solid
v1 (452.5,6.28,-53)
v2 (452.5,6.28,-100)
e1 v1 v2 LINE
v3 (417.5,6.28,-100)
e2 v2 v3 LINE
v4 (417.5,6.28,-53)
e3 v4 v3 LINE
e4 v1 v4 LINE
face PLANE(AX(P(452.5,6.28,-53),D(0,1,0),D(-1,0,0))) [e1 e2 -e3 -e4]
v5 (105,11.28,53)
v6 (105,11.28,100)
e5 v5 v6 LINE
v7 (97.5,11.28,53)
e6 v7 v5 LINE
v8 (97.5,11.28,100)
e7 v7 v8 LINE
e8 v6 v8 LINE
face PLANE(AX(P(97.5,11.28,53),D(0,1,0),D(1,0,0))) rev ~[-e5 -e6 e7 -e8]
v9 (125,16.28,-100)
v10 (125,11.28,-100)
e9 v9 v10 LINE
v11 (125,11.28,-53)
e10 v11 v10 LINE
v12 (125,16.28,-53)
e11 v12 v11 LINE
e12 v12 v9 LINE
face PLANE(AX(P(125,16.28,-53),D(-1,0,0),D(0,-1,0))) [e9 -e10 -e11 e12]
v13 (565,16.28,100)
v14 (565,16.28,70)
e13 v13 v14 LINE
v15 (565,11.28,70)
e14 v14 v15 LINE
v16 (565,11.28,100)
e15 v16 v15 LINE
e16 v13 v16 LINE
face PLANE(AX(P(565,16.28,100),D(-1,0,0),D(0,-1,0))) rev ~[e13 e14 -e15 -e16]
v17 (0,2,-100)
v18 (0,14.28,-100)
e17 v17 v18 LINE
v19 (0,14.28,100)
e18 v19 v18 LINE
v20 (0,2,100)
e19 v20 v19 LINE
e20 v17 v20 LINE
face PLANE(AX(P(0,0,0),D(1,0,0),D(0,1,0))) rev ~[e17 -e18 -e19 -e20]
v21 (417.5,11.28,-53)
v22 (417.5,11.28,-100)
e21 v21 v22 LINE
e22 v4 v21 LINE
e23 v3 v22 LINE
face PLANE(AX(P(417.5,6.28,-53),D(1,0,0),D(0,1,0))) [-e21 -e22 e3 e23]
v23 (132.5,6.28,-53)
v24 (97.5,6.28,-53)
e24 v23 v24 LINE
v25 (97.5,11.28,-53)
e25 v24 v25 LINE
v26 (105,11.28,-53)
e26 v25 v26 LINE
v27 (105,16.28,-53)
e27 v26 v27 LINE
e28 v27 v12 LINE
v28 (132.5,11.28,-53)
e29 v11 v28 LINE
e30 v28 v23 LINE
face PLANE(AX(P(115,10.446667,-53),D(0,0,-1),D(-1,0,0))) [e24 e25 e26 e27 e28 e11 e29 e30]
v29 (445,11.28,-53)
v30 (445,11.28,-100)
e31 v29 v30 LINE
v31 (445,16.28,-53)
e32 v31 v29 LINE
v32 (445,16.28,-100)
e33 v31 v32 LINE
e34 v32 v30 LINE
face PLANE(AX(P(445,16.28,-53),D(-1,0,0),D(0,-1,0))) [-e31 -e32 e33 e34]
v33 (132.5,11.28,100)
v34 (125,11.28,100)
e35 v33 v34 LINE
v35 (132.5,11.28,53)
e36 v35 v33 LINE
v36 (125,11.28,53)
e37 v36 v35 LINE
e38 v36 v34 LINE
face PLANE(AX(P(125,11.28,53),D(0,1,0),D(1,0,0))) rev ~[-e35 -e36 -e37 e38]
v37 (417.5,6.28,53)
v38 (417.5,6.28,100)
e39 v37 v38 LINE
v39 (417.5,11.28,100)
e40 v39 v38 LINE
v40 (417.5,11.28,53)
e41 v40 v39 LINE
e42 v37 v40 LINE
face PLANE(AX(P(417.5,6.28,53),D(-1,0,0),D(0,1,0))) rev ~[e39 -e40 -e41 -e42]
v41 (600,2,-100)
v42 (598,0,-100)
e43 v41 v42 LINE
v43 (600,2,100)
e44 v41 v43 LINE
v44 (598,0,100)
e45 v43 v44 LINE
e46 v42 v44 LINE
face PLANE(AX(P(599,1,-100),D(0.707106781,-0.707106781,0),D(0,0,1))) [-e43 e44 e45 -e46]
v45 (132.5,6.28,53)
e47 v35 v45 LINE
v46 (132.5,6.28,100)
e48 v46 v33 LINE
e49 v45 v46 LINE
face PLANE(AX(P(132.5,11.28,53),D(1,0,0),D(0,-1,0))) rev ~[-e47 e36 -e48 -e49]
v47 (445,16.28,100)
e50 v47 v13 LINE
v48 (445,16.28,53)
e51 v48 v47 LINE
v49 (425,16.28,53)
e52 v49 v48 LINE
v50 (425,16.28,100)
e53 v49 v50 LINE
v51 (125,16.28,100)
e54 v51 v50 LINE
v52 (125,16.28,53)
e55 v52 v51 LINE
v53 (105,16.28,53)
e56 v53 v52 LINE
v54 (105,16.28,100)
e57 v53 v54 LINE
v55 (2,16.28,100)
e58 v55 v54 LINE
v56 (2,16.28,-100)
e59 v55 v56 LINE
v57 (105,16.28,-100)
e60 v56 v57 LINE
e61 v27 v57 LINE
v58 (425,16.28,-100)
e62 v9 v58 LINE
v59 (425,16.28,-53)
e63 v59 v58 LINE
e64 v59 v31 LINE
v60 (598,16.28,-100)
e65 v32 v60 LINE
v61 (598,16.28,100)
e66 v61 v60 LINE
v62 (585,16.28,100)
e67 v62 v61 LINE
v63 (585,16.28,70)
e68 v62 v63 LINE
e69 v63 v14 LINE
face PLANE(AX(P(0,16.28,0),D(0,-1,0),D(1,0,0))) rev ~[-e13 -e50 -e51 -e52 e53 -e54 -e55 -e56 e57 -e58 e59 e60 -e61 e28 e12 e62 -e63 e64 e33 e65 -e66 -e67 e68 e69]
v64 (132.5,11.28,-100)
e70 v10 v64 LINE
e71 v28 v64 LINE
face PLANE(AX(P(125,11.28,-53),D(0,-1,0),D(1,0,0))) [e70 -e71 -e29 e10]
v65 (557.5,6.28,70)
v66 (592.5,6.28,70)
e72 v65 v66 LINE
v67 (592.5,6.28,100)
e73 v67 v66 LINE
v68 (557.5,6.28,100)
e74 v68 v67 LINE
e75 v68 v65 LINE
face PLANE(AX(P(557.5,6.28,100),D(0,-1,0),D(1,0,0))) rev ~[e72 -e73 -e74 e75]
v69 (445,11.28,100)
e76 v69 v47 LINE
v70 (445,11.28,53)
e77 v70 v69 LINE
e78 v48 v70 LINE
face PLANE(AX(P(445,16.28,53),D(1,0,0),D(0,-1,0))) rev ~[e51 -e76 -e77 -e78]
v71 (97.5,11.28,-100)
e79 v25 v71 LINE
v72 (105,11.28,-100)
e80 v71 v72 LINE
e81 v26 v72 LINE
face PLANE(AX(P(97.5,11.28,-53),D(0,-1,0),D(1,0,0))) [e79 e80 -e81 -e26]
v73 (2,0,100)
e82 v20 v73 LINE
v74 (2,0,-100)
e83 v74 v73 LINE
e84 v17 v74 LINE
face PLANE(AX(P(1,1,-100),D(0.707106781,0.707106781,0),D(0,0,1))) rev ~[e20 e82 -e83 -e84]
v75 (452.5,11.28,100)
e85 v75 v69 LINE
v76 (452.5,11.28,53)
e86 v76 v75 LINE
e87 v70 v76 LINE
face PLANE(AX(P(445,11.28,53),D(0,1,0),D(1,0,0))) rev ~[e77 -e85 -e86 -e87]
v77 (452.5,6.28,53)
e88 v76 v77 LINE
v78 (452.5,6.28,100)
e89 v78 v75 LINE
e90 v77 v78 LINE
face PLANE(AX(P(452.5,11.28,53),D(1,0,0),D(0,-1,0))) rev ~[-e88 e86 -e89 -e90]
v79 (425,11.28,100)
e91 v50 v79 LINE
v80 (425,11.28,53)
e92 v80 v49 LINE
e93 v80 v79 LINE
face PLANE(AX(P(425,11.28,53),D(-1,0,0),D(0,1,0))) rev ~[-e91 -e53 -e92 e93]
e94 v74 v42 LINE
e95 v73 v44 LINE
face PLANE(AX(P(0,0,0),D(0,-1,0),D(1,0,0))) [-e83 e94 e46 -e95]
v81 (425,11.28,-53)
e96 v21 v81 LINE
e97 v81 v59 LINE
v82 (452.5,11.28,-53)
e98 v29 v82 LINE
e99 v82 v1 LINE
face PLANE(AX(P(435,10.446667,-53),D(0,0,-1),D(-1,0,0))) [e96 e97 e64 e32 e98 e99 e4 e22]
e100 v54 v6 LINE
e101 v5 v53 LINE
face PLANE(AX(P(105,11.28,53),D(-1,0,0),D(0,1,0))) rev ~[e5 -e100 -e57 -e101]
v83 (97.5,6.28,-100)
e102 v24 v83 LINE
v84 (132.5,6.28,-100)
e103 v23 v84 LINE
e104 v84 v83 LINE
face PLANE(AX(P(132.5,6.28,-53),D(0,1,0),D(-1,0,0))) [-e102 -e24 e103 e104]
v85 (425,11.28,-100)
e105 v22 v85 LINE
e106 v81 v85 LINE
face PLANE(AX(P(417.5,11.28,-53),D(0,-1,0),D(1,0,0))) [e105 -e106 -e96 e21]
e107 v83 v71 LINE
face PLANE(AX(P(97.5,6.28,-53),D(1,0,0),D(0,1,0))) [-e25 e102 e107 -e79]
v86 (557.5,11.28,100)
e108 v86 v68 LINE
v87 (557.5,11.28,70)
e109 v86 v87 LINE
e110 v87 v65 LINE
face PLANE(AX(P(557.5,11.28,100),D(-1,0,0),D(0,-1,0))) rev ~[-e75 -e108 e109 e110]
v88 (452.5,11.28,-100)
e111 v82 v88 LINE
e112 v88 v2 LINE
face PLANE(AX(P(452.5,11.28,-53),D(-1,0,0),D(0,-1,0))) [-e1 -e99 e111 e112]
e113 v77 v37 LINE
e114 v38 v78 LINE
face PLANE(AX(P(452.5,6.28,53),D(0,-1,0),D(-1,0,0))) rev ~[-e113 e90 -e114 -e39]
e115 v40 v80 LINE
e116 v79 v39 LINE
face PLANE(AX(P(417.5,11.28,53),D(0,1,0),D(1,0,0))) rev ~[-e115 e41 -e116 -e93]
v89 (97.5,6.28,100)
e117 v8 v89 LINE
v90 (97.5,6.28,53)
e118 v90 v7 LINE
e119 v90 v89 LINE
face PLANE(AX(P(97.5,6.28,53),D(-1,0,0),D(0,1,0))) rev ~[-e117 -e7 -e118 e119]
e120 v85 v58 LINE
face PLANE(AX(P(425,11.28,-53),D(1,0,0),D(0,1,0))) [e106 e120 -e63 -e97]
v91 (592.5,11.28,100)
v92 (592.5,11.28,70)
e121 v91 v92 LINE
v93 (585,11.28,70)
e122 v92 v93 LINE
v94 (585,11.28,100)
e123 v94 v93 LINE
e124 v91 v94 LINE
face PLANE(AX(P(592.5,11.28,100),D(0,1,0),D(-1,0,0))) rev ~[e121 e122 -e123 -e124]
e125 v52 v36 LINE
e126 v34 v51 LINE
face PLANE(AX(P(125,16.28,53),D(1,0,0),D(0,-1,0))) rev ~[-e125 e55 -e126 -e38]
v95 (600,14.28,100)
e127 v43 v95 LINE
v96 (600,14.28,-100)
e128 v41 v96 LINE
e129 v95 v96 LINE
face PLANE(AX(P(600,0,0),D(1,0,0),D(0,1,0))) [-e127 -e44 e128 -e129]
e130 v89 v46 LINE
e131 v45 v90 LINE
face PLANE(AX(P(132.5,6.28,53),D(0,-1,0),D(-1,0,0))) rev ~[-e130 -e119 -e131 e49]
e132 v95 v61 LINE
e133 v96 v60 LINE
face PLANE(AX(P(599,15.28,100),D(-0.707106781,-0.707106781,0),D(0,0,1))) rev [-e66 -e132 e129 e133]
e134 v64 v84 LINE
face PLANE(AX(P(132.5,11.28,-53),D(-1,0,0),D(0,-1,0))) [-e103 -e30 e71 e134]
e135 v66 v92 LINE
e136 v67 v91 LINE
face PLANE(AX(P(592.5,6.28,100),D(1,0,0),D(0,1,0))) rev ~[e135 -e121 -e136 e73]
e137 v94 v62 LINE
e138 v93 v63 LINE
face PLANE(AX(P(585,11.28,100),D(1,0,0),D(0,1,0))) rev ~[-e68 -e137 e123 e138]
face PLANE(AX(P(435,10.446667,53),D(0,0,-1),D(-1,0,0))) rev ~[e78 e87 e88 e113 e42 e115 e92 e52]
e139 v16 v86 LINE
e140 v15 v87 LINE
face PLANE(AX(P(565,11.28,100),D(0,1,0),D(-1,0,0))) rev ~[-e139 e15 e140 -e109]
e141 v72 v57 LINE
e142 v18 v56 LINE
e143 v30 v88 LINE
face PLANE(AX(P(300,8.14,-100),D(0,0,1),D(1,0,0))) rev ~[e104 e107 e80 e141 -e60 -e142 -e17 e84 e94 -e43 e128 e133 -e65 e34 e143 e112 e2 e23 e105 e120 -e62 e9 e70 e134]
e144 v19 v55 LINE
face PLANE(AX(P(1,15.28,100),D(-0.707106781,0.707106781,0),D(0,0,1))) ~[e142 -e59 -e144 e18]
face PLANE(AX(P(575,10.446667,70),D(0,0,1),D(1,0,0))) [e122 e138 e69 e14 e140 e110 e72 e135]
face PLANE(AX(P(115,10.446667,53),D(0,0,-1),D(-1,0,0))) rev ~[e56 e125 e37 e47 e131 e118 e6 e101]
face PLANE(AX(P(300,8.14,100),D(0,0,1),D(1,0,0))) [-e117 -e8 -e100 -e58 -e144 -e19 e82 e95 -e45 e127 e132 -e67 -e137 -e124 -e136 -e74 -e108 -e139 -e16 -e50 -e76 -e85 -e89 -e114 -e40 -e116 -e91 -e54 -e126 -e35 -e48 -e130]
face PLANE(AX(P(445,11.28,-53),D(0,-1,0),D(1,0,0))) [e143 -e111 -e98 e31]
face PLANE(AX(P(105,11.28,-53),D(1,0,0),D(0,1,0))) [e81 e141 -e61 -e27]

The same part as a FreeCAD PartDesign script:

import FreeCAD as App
import Part
import Sketcher


def edges_at(feature, points):
    """Names of the edges that pass closest to the given points."""
    edges = feature.Shape.Edges
    near = lambda p: min(range(len(edges)), key=lambda i: edges[i].distToShape(Part.Vertex(*p))[0])
    return sorted({f"Edge{near(p) + 1}" for p in points})


def add_polygon(sketch, points):
    """Adds a closed chain of lines whose ends are joined by coincident constraints."""
    first, n = sketch.GeometryCount, len(points)
    for a, b in zip(points, points[1:] + points[:1]):
        sketch.addGeometry(Part.LineSegment(App.Vector(*a, 0), App.Vector(*b, 0)), False)
    for i in range(n):
        sketch.addConstraint(Sketcher.Constraint("Coincident", first + i, 2, first + (i + 1) % n, 1))

doc = App.newDocument("Part")
params = doc.addObject("Spreadsheet::Sheet", "Params")
for row, (alias, value) in enumerate([
    ("sketch1_width", "600 mm"),
    ("sketch1_height", "16.28 mm"),
    ("pad1_length", "200 mm"),
    ("chamfer_size", "2 mm"),
    ("sketch2_width", "20 mm"),
    ("sketch2_width2", "35 mm"),
    ("sketch2_height", "5 mm"),
    ("sketch3_width", "20 mm"),
    ("sketch3_width2", "35 mm"),
    ("sketch3_height", "5 mm"),
    ("sketch4_width", "20 mm"),
    ("sketch4_width2", "35 mm"),
    ("sketch4_height", "5 mm"),
    ("pocket3_length", "30 mm"),
], start=1):
    params.set(f"A{row}", alias)
    params.set(f"B{row}", "=" + value)
    params.setAlias(f"B{row}", alias)

body = doc.addObject("PartDesign::Body", "Body")

# Sketch on XY plane
sketch1 = doc.addObject("Sketcher::SketchObject", "Sketch")
body.addObject(sketch1)
sketch1.AttachmentSupport = (doc.XY_Plane, [""])
sketch1.MapMode = "FlatFace"
add_polygon(sketch1, [(0, 16), (0, 0), (600, 0), (600, 16)])  # lines 0-3
sketch1.addConstraint(Sketcher.Constraint("Vertical", 0))
sketch1.addConstraint(Sketcher.Constraint("Horizontal", 1))
sketch1.addConstraint(Sketcher.Constraint("Vertical", 2))
sketch1.addConstraint(Sketcher.Constraint("Horizontal", 3))
sketch1.addConstraint(Sketcher.Constraint("Coincident", 0, 2, -1, 1))
sketch1.addConstraint(Sketcher.Constraint("DistanceX", 1, 1, 1, 2, 600.0))
sketch1.addConstraint(Sketcher.Constraint("DistanceY", 0, 2, 0, 1, 16.28))
sketch1.setExpression("Constraints[9]", "Params.sketch1_width")
sketch1.setExpression("Constraints[10]", "Params.sketch1_height")
pad1 = doc.addObject("PartDesign::Pad", "Pad")
body.addObject(pad1)
pad1.Profile = sketch1
pad1.setExpression("Length", "Params.pad1_length")
pad1.Midplane = True
doc.recompute()

chamfer = doc.addObject("PartDesign::Chamfer", "Chamfer")
body.addObject(chamfer)
chamfer.Base = (pad1, edges_at(pad1, [
    (600, 16.28, 0),
    (600, 0, 0),
    (0, 0, 0),
    (0, 16.28, 0),
]))
chamfer.setExpression("Size", "Params.chamfer_size")

# Sketch on XY plane
sketch2 = doc.addObject("Sketcher::SketchObject", "Sketch001")
body.addObject(sketch2)
sketch2.AttachmentSupport = (doc.XY_Plane, [""])
sketch2.MapMode = "FlatFace"
sketch2.AttachmentOffset = App.Placement(App.Vector(0, 0, -53), App.Rotation())
add_polygon(sketch2, [(125, 16.3), (105, 16.3), (105, 11.3), (97.5, 11.3), (97.5, 6.3), (132.5, 6.3), (132.5, 11.3), (125, 11.3)])  # lines 0-7
add_polygon(sketch2, [(445, 16.3), (425, 16.3), (425, 11.3), (417.5, 11.3), (417.5, 6.3), (452.5, 6.3), (452.5, 11.3), (445, 11.3)])  # lines 8-15
sketch2.addConstraint(Sketcher.Constraint("Horizontal", 0))
sketch2.addConstraint(Sketcher.Constraint("Vertical", 1))
sketch2.addConstraint(Sketcher.Constraint("Horizontal", 2))
sketch2.addConstraint(Sketcher.Constraint("Vertical", 3))
sketch2.addConstraint(Sketcher.Constraint("Horizontal", 4))
sketch2.addConstraint(Sketcher.Constraint("Vertical", 5))
sketch2.addConstraint(Sketcher.Constraint("Horizontal", 6))
sketch2.addConstraint(Sketcher.Constraint("Vertical", 7))
sketch2.addConstraint(Sketcher.Constraint("Horizontal", 8))
sketch2.addConstraint(Sketcher.Constraint("Vertical", 9))
sketch2.addConstraint(Sketcher.Constraint("Horizontal", 10))
sketch2.addConstraint(Sketcher.Constraint("Vertical", 11))
sketch2.addConstraint(Sketcher.Constraint("Horizontal", 12))
sketch2.addConstraint(Sketcher.Constraint("Vertical", 13))
sketch2.addConstraint(Sketcher.Constraint("Horizontal", 14))
sketch2.addConstraint(Sketcher.Constraint("Vertical", 15))
sketch2.addConstraint(Sketcher.Constraint("Horizontal", 2, 2, 5, 2))
sketch2.addConstraint(Sketcher.Constraint("Horizontal", 7, 2, 8, 2))
sketch2.addConstraint(Sketcher.Constraint("Horizontal", 6, 2, 9, 2))
sketch2.addConstraint(Sketcher.Constraint("Horizontal", 4, 2, 11, 2))
sketch2.addConstraint(Sketcher.Constraint("Horizontal", 10, 2, 13, 2))
sketch2.addConstraint(Sketcher.Constraint("Equal", 2, 6))
sketch2.addConstraint(Sketcher.Constraint("Equal", 0, 8))
sketch2.addConstraint(Sketcher.Constraint("Equal", 6, 10))
sketch2.addConstraint(Sketcher.Constraint("Equal", 4, 12))
sketch2.addConstraint(Sketcher.Constraint("Equal", 1, 3))
sketch2.addConstraint(Sketcher.Constraint("DistanceX", 0, 2, 0, 1, 20.0))
sketch2.addConstraint(Sketcher.Constraint("DistanceX", 4, 1, 4, 2, 35.0))
sketch2.addConstraint(Sketcher.Constraint("DistanceY", 1, 2, 1, 1, 5.0))
sketch2.addConstraint(Sketcher.Constraint("DistanceX", -1, 1, 0, 2, 105.0))
sketch2.addConstraint(Sketcher.Constraint("DistanceX", -1, 1, 8, 2, 425.0))
sketch2.addConstraint(Sketcher.Constraint("DistanceY", -1, 1, 0, 2, 16.28))
sketch2.setExpression("Constraints[42]", "Params.sketch2_width")
sketch2.setExpression("Constraints[43]", "Params.sketch2_width2")
sketch2.setExpression("Constraints[44]", "Params.sketch2_height")
pocket1 = doc.addObject("PartDesign::Pocket", "Pocket")
body.addObject(pocket1)
pocket1.Profile = sketch2
pocket1.Type = "ThroughAll"

# Sketch on XY plane
sketch3 = doc.addObject("Sketcher::SketchObject", "Sketch002")
body.addObject(sketch3)
sketch3.AttachmentSupport = (doc.XY_Plane, [""])
sketch3.MapMode = "FlatFace"
sketch3.AttachmentOffset = App.Placement(App.Vector(0, 0, 53), App.Rotation())
add_polygon(sketch3, [(125, 16.3), (105, 16.3), (105, 11.3), (97.5, 11.3), (97.5, 6.3), (132.5, 6.3), (132.5, 11.3), (125, 11.3)])  # lines 0-7
add_polygon(sketch3, [(445, 16.3), (425, 16.3), (425, 11.3), (417.5, 11.3), (417.5, 6.3), (452.5, 6.3), (452.5, 11.3), (445, 11.3)])  # lines 8-15
sketch3.addConstraint(Sketcher.Constraint("Horizontal", 0))
sketch3.addConstraint(Sketcher.Constraint("Vertical", 1))
sketch3.addConstraint(Sketcher.Constraint("Horizontal", 2))
sketch3.addConstraint(Sketcher.Constraint("Vertical", 3))
sketch3.addConstraint(Sketcher.Constraint("Horizontal", 4))
sketch3.addConstraint(Sketcher.Constraint("Vertical", 5))
sketch3.addConstraint(Sketcher.Constraint("Horizontal", 6))
sketch3.addConstraint(Sketcher.Constraint("Vertical", 7))
sketch3.addConstraint(Sketcher.Constraint("Horizontal", 8))
sketch3.addConstraint(Sketcher.Constraint("Vertical", 9))
sketch3.addConstraint(Sketcher.Constraint("Horizontal", 10))
sketch3.addConstraint(Sketcher.Constraint("Vertical", 11))
sketch3.addConstraint(Sketcher.Constraint("Horizontal", 12))
sketch3.addConstraint(Sketcher.Constraint("Vertical", 13))
sketch3.addConstraint(Sketcher.Constraint("Horizontal", 14))
sketch3.addConstraint(Sketcher.Constraint("Vertical", 15))
sketch3.addConstraint(Sketcher.Constraint("Horizontal", 2, 2, 5, 2))
sketch3.addConstraint(Sketcher.Constraint("Horizontal", 7, 2, 8, 2))
sketch3.addConstraint(Sketcher.Constraint("Horizontal", 6, 2, 9, 2))
sketch3.addConstraint(Sketcher.Constraint("Horizontal", 4, 2, 11, 2))
sketch3.addConstraint(Sketcher.Constraint("Horizontal", 10, 2, 13, 2))
sketch3.addConstraint(Sketcher.Constraint("Equal", 2, 6))
sketch3.addConstraint(Sketcher.Constraint("Equal", 0, 8))
sketch3.addConstraint(Sketcher.Constraint("Equal", 6, 10))
sketch3.addConstraint(Sketcher.Constraint("Equal", 4, 12))
sketch3.addConstraint(Sketcher.Constraint("Equal", 1, 3))
sketch3.addConstraint(Sketcher.Constraint("DistanceX", 0, 2, 0, 1, 20.0))
sketch3.addConstraint(Sketcher.Constraint("DistanceX", 4, 1, 4, 2, 35.0))
sketch3.addConstraint(Sketcher.Constraint("DistanceY", 1, 2, 1, 1, 5.0))
sketch3.addConstraint(Sketcher.Constraint("DistanceX", -1, 1, 0, 2, 105.0))
sketch3.addConstraint(Sketcher.Constraint("DistanceX", -1, 1, 8, 2, 425.0))
sketch3.addConstraint(Sketcher.Constraint("DistanceY", -1, 1, 0, 2, 16.28))
sketch3.setExpression("Constraints[42]", "Params.sketch3_width")
sketch3.setExpression("Constraints[43]", "Params.sketch3_width2")
sketch3.setExpression("Constraints[44]", "Params.sketch3_height")
pocket2 = doc.addObject("PartDesign::Pocket", "Pocket001")
body.addObject(pocket2)
pocket2.Profile = sketch3
pocket2.Type = "ThroughAll"
pocket2.Reversed = True

# Sketch on XY plane
sketch4 = doc.addObject("Sketcher::SketchObject", "Sketch003")
body.addObject(sketch4)
sketch4.AttachmentSupport = (doc.XY_Plane, [""])
sketch4.MapMode = "FlatFace"
sketch4.AttachmentOffset = App.Placement(App.Vector(0, 0, 100), App.Rotation())
add_polygon(sketch4, [(585, 11.3), (585, 16.3), (565, 16.3), (565, 11.3), (557.5, 11.3), (557.5, 6.3), (592.5, 6.3), (592.5, 11.3)])  # lines 0-7
sketch4.addConstraint(Sketcher.Constraint("Vertical", 0))
sketch4.addConstraint(Sketcher.Constraint("Horizontal", 1))
sketch4.addConstraint(Sketcher.Constraint("Vertical", 2))
sketch4.addConstraint(Sketcher.Constraint("Horizontal", 3))
sketch4.addConstraint(Sketcher.Constraint("Vertical", 4))
sketch4.addConstraint(Sketcher.Constraint("Horizontal", 5))
sketch4.addConstraint(Sketcher.Constraint("Vertical", 6))
sketch4.addConstraint(Sketcher.Constraint("Horizontal", 7))
sketch4.addConstraint(Sketcher.Constraint("Horizontal", 3, 2, 6, 2))
sketch4.addConstraint(Sketcher.Constraint("Equal", 3, 7))
sketch4.addConstraint(Sketcher.Constraint("Equal", 2, 4))
sketch4.addConstraint(Sketcher.Constraint("DistanceX", 1, 2, 1, 1, 20.0))
sketch4.addConstraint(Sketcher.Constraint("DistanceX", 5, 1, 5, 2, 35.0))
sketch4.addConstraint(Sketcher.Constraint("DistanceY", 0, 1, 0, 2, 5.0))
sketch4.addConstraint(Sketcher.Constraint("DistanceX", -1, 1, 0, 2, 585.0))
sketch4.addConstraint(Sketcher.Constraint("DistanceY", -1, 1, 0, 2, 16.28))
sketch4.setExpression("Constraints[19]", "Params.sketch4_width")
sketch4.setExpression("Constraints[20]", "Params.sketch4_width2")
sketch4.setExpression("Constraints[21]", "Params.sketch4_height")
pocket3 = doc.addObject("PartDesign::Pocket", "Pocket002")
body.addObject(pocket3)
pocket3.Profile = sketch4
pocket3.setExpression("Length", "Params.pocket3_length")

doc.recompute()
